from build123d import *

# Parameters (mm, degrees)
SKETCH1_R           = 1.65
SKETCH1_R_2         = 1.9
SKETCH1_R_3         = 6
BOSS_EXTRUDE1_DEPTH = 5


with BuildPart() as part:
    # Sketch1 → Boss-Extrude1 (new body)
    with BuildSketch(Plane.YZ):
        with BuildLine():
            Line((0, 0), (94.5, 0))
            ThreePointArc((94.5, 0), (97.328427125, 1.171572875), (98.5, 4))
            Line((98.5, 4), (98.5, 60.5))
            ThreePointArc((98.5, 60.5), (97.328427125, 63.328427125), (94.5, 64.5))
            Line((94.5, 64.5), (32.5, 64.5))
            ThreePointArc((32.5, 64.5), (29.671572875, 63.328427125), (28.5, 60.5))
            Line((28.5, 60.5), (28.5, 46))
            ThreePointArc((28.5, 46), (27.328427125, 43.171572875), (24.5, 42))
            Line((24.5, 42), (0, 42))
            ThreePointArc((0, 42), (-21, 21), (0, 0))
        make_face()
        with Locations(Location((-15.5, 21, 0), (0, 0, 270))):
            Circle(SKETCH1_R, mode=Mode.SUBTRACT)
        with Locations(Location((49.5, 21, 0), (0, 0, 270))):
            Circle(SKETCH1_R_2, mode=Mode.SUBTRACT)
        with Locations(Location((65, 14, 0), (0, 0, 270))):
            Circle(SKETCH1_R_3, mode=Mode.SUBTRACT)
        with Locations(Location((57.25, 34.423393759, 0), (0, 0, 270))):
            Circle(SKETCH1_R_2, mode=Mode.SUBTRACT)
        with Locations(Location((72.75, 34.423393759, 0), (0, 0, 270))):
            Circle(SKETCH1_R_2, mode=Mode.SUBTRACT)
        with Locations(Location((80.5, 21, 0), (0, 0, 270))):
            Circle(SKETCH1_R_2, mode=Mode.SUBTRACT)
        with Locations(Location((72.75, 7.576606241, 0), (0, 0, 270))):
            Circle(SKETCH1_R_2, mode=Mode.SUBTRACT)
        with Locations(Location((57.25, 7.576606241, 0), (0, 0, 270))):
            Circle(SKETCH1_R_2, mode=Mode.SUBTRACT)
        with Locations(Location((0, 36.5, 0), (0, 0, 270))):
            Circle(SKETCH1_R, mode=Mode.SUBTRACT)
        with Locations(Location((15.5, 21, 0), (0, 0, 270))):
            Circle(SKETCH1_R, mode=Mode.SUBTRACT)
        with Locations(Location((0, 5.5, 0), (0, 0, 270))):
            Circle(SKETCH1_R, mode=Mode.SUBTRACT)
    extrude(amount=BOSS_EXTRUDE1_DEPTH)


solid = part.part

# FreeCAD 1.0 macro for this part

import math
import FreeCAD as App
import Part
import Sketcher

V = App.Vector
Q = App.Units.Quantity

doc = App.newDocument("Part")
body = doc.addObject("PartDesign::Body", "Body")

# Sketch on YZ plane
sketch1 = body.newObject("Sketcher::SketchObject", "Sketch")
sketch1.AttachmentSupport = (doc.getObject("YZ_Plane"), [""])
sketch1.MapMode = "FlatFace"
sketch1.addGeometry([
    Part.LineSegment(V(0, 0, 0), V(94.5, 0, 0)),  # 0
    Part.ArcOfCircle(Part.Circle(V(94.5, 4, 0), V(0, 0, 1), 4), math.radians(-90), math.radians(0)),  # 1
    Part.LineSegment(V(98.5, 4, 0), V(98.5, 60.5, 0)),  # 2
    Part.ArcOfCircle(Part.Circle(V(94.5, 60.5, 0), V(0, 0, 1), 4), math.radians(0), math.radians(90)),  # 3
    Part.LineSegment(V(94.5, 64.5, 0), V(32.5, 64.5, 0)),  # 4
    Part.ArcOfCircle(Part.Circle(V(32.5, 60.5, 0), V(0, 0, 1), 4), math.radians(90), math.radians(180)),  # 5
    Part.LineSegment(V(28.5, 60.5, 0), V(28.5, 46, 0)),  # 6
    Part.ArcOfCircle(Part.Circle(V(24.5, 46, 0), V(0, 0, 1), 4), math.radians(-90), math.radians(0)),  # 7
    Part.LineSegment(V(24.5, 42, 0), V(0, 42, 0)),  # 8
    Part.ArcOfCircle(Part.Circle(V(0, 21, 0), V(0, 0, 1), 21), math.radians(90), math.radians(270)),  # 9
    Part.Circle(V(0, 5.5, 0), V(0, 0, 1), 1.65),  # 10
    Part.Circle(V(57.25, 7.576606, 0), V(0, 0, 1), 1.9),  # 11
    Part.Circle(V(72.75, 7.576606, 0), V(0, 0, 1), 1.9),  # 12
    Part.Circle(V(65, 14, 0), V(0, 0, 1), 6),  # 13
    Part.Circle(V(-15.5, 21, 0), V(0, 0, 1), 1.65),  # 14
    Part.Circle(V(15.5, 21, 0), V(0, 0, 1), 1.65),  # 15
    Part.Circle(V(0, 36.5, 0), V(0, 0, 1), 1.65),  # 16
    Part.Circle(V(49.5, 21, 0), V(0, 0, 1), 1.9),  # 17
    Part.Circle(V(80.5, 21, 0), V(0, 0, 1), 1.9),  # 18
    Part.Circle(V(57.25, 34.423394, 0), V(0, 0, 1), 1.9),  # 19
    Part.Circle(V(72.75, 34.423394, 0), V(0, 0, 1), 1.9),  # 20
], False)
sketch1.addConstraint([
    Sketcher.Constraint("Tangent", 0, 2, 1, 1),
    Sketcher.Constraint("Tangent", 1, 2, 2, 1),
    Sketcher.Constraint("Tangent", 2, 2, 3, 1),
    Sketcher.Constraint("Tangent", 3, 2, 4, 1),
    Sketcher.Constraint("Tangent", 4, 2, 5, 1),
    Sketcher.Constraint("Tangent", 5, 2, 6, 1),
    Sketcher.Constraint("Tangent", 6, 2, 7, 2),
    Sketcher.Constraint("Tangent", 7, 1, 8, 1),
    Sketcher.Constraint("Tangent", 8, 2, 9, 1),
    Sketcher.Constraint("Tangent", 9, 2, 0, 1),
    Sketcher.Constraint("Horizontal", 0),
    Sketcher.Constraint("Vertical", 2),
    Sketcher.Constraint("Horizontal", 4),
    Sketcher.Constraint("Vertical", 6),
    Sketcher.Constraint("Horizontal", 8),
    Sketcher.Constraint("Coincident", 9, 2, -1, 1),
    Sketcher.Constraint("Equal", 1, 3),
    Sketcher.Constraint("Equal", 3, 5),
    Sketcher.Constraint("Equal", 5, 7),
    Sketcher.Constraint("Equal", 11, 12),
    Sketcher.Constraint("Equal", 10, 14),
    Sketcher.Constraint("Equal", 14, 15),
    Sketcher.Constraint("Equal", 15, 16),
    Sketcher.Constraint("Equal", 12, 17),
    Sketcher.Constraint("Equal", 17, 18),
    Sketcher.Constraint("Equal", 18, 19),
    Sketcher.Constraint("Equal", 19, 20),
    Sketcher.Constraint("Symmetric", 14, 3, 15, 3, -2),
    Sketcher.Constraint("PointOnObject", 10, 3, -2),
    Sketcher.Constraint("PointOnObject", 16, 3, -2),
    Sketcher.Constraint("Horizontal", 11, 3, 12, 3),
    Sketcher.Constraint("Horizontal", 9, 3, 14, 3),
    Sketcher.Constraint("Horizontal", 15, 3, 17, 3),
    Sketcher.Constraint("Horizontal", 17, 3, 18, 3),
    Sketcher.Constraint("Horizontal", 19, 3, 20, 3),
    Sketcher.Constraint("Vertical", 11, 3, 19, 3),
    Sketcher.Constraint("Vertical", 12, 3, 20, 3),
    Sketcher.Constraint("Diameter", 13, Q("12 mm")),
    Sketcher.Constraint("Radius", 1, Q("4 mm")),
    Sketcher.Constraint("Radius", 9, Q("21 mm")),
    Sketcher.Constraint("Diameter", 10, Q("3.3 mm")),
    Sketcher.Constraint("Diameter", 11, Q("3.8 mm")),
    Sketcher.Constraint("DistanceX", 4, 2, 4, 1, Q("62 mm")),
    Sketcher.Constraint("DistanceX", 0, 1, 0, 2, Q("94.5 mm")),
    Sketcher.Constraint("DistanceY", 2, 1, 2, 2, Q("56.5 mm")),
    Sketcher.Constraint("DistanceX", -1, 1, 13, 3, Q("65 mm")),
    Sketcher.Constraint("DistanceY", -1, 1, 13, 3, Q("14 mm")),
    Sketcher.Constraint("DistanceY", 10, 3, 5, 3, Q("55 mm")),
    Sketcher.Constraint("DistanceX", 14, 3, 7, 3, Q("40 mm")),
    Sketcher.Constraint("DistanceY", 10, 3, 16, 3, Q("31 mm")),
    Sketcher.Constraint("DistanceX", 15, 3, 17, 3, Q("34 mm")),
    Sketcher.Constraint("DistanceX", 18, 3, 1, 3, Q("14 mm")),
    Sketcher.Constraint("DistanceX", 11, 3, 12, 3, Q("15.5 mm")),
    Sketcher.Constraint("DistanceX", -1, 1, 11, 3, Q("57.25 mm")),
    Sketcher.Constraint("DistanceY", -1, 1, 11, 3, Q("7.576606 mm")),
    Sketcher.Constraint("DistanceY", -1, 1, 19, 3, Q("34.423394 mm")),
])
pad1 = body.newObject("PartDesign::Pad", "Pad")
pad1.Profile = sketch1
pad1.Length = 5

doc.recompute()
